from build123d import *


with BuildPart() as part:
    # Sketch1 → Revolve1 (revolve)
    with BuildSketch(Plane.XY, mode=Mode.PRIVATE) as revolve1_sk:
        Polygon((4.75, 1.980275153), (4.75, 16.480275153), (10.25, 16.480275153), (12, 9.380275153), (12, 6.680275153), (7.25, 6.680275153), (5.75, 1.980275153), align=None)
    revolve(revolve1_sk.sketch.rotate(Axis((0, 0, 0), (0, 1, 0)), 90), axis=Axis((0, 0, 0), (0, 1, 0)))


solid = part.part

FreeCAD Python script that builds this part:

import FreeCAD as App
import Part
import Sketcher

V = App.Vector


def add_polygon(sketch, points):
    """Adds a closed chain of lines whose ends are joined by coincident constraints."""
    first, n = sketch.GeometryCount, len(points)
    for a, b in zip(points, points[1:] + points[:1]):
        sketch.addGeometry(Part.LineSegment(App.Vector(*a, 0), App.Vector(*b, 0)), False)
    for i in range(n):
        sketch.addConstraint(Sketcher.Constraint("Coincident", first + i, 2, first + (i + 1) % n, 1))

doc = App.newDocument("Part")
body = doc.addObject("PartDesign::Body", "Body")

sketch1 = body.newObject("Sketcher::SketchObject", "Sketch")
sketch1.AttachmentSupport = (doc.getObject("XY_Plane"), [""])
sketch1.MapMode = "FlatFace"
add_polygon(sketch1, [(4.8, 16.5), (4.8, 2), (5.8, 2), (7.2, 6.7), (12, 6.7), (12, 9.4), (10.2, 16.5)])
sketch1.addConstraint(Sketcher.Constraint("Vertical", 0))
sketch1.addConstraint(Sketcher.Constraint("Horizontal", 1))
sketch1.addConstraint(Sketcher.Constraint("Horizontal", 3))
sketch1.addConstraint(Sketcher.Constraint("Vertical", 4))
sketch1.addConstraint(Sketcher.Constraint("Horizontal", 6))
sketch1.addConstraint(Sketcher.Constraint("DistanceX", 1, 1, 1, 2, 1.0))
sketch1.addConstraint(Sketcher.Constraint("DistanceX", 6, 2, 6, 1, 5.5))
sketch1.addConstraint(Sketcher.Constraint("DistanceY", 0, 2, 0, 1, 14.5))
sketch1.addConstraint(Sketcher.Constraint("DistanceY", 4, 1, 4, 2, 2.7))
sketch1.addConstraint(Sketcher.Constraint("DistanceX", -1, 1, 3, 2, 12.0))
sketch1.addConstraint(Sketcher.Constraint("DistanceX", 2, 2, 5, 2, 3.0))
sketch1.addConstraint(Sketcher.Constraint("DistanceX", 3, 1, 3, 2, 4.75))
sketch1.addConstraint(Sketcher.Constraint("DistanceY", 1, 2, 2, 2, 4.7))
sketch1.addConstraint(Sketcher.Constraint("DistanceY", -1, 1, 0, 2, 1.980275))
revolution = body.newObject("PartDesign::Revolution", "Revolution")
revolution.Profile = sketch1
revolution.ReferenceAxis = (sketch1, ["V_Axis"])
revolution.Angle = 360

doc.recompute()
